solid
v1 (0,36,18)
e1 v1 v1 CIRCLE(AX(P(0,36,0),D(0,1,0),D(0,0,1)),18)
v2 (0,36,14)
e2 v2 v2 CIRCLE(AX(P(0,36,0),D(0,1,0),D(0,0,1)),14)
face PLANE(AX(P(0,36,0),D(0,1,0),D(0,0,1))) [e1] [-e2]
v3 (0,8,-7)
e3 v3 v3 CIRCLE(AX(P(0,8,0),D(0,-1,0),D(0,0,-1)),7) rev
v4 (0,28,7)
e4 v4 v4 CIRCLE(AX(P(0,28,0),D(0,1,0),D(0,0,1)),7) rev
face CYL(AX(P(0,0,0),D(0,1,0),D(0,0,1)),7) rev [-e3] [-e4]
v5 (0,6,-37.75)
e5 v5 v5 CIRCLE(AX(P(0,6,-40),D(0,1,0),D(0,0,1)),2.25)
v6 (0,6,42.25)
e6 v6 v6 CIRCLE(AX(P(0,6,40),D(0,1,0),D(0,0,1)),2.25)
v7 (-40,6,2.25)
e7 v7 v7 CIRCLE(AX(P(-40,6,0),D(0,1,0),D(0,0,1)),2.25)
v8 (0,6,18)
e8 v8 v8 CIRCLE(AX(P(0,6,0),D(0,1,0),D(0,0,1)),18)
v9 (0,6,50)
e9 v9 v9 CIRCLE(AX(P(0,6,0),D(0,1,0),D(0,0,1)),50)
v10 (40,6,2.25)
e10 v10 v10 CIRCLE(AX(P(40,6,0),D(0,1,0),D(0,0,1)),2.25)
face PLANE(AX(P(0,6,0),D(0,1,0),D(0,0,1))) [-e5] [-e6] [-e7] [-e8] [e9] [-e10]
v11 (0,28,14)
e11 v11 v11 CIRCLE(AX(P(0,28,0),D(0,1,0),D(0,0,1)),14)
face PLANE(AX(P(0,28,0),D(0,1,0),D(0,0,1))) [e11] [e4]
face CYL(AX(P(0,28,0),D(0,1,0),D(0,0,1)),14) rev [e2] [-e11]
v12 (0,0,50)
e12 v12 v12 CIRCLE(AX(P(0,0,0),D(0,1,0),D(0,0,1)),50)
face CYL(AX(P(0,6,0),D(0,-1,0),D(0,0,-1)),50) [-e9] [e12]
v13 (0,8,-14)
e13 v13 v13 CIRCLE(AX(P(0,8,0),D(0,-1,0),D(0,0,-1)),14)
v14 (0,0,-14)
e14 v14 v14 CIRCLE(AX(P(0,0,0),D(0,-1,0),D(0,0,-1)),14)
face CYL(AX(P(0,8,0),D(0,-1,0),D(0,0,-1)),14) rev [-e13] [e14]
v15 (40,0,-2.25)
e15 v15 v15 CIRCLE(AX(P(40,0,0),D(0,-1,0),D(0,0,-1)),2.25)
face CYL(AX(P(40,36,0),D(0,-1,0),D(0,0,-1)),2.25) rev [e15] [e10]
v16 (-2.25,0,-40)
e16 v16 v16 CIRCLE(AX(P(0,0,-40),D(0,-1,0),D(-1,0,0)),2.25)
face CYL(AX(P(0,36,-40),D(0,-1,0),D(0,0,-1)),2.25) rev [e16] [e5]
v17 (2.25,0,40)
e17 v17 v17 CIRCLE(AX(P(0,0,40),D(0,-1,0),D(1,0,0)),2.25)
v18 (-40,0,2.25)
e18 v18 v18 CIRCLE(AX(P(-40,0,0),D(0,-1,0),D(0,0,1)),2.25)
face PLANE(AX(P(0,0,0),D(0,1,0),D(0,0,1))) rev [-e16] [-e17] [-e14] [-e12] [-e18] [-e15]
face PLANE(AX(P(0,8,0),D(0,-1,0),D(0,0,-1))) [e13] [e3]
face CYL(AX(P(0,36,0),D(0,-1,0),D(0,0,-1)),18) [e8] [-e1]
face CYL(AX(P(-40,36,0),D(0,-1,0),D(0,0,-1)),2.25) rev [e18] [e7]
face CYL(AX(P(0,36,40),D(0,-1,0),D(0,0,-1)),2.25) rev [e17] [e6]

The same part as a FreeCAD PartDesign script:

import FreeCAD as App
import Part
import Sketcher
from FreeCAD import Vector

doc = App.newDocument("Part")
body = doc.addObject("PartDesign::Body", "Body")

sketch1 = body.newObject("Sketcher::SketchObject", "Sketch")
sketch1.AttachmentSupport = (doc.getObject("XZ_Plane"), [""])
sketch1.MapMode = "FlatFace"
sketch1.addGeometry(Part.Circle(Vector(0, 0, 0), Vector(0, 0, 1), 50), False)
sketch1.addConstraint([
    Sketcher.Constraint("Coincident", 0, 3, -1, 1),
    Sketcher.Constraint("Diameter", 0, 100.0),
])
pad1 = body.newObject("PartDesign::Pad", "Pad")
pad1.Profile = sketch1
pad1.Length = 6
pad1.Reversed = True

sketch2 = body.newObject("Sketcher::SketchObject", "Sketch001")
sketch2.AttachmentSupport = (doc.getObject("XZ_Plane"), [""])
sketch2.MapMode = "FlatFace"
sketch2.AttachmentOffset = App.Placement(Vector(0, 0, -6), App.Rotation())
sketch2.addGeometry(Part.Circle(Vector(0, 0, 0), Vector(0, 0, 1), 18), False)
sketch2.addConstraint([
    Sketcher.Constraint("Coincident", 0, 3, -1, 1),
    Sketcher.Constraint("Diameter", 0, 36.0),
])
pad2 = body.newObject("PartDesign::Pad", "Pad001")
pad2.Profile = sketch2
pad2.Length = 30
pad2.Reversed = True

sketch3 = body.newObject("Sketcher::SketchObject", "Sketch002")
sketch3.AttachmentSupport = (doc.getObject("XZ_Plane"), [""])
sketch3.MapMode = "FlatFace"
sketch3.AttachmentOffset = App.Placement(Vector(0, 0, -36), App.Rotation())
sketch3.addGeometry(Part.Circle(Vector(0, 0, 0), Vector(0, 0, 1), 7), False)
sketch3.addConstraint([
    Sketcher.Constraint("Coincident", 0, 3, -1, 1),
    Sketcher.Constraint("Diameter", 0, 14.0),
])
pocket1 = body.newObject("PartDesign::Pocket", "Pocket")
pocket1.Profile = sketch3
pocket1.Type = "ThroughAll"
pocket1.Reversed = True

sketch4 = body.newObject("Sketcher::SketchObject", "Sketch003")
sketch4.AttachmentSupport = (doc.getObject("XZ_Plane"), [""])
sketch4.MapMode = "FlatFace"
sketch4.AttachmentOffset = App.Placement(Vector(0, 0, -36), App.Rotation())
sketch4.addGeometry(Part.Circle(Vector(0, 0, 0), Vector(0, 0, 1), 14), False)
sketch4.addConstraint([
    Sketcher.Constraint("Coincident", 0, 3, -1, 1),
    Sketcher.Constraint("Diameter", 0, 28.0),
])
pocket2 = body.newObject("PartDesign::Pocket", "Pocket001")
pocket2.Profile = sketch4
pocket2.Length = 8
pocket2.Reversed = True

sketch5 = body.newObject("Sketcher::SketchObject", "Sketch004")
sketch5.AttachmentSupport = (doc.getObject("XZ_Plane"), [""])
sketch5.MapMode = "FlatFace"
sketch5.AttachmentOffset = App.Placement(Vector(0, 0, -8), App.Rotation())
sketch5.addGeometry(Part.Circle(Vector(0, 0, 0), Vector(0, 0, 1), 14), False)
sketch5.addConstraint([
    Sketcher.Constraint("Coincident", 0, 3, -1, 1),
    Sketcher.Constraint("Diameter", 0, 28.0),
])
pocket3 = body.newObject("PartDesign::Pocket", "Pocket002")
pocket3.Profile = sketch5
pocket3.Length = 8
pocket3.Reversed = True

sketch6 = body.newObject("Sketcher::SketchObject", "Sketch005")
sketch6.AttachmentSupport = (doc.getObject("XZ_Plane"), [""])
sketch6.MapMode = "FlatFace"
sketch6.addGeometry(Part.Circle(Vector(40, 0, 0), Vector(0, 0, 1), 2.2), False)
sketch6.addConstraint([
    Sketcher.Constraint("PointOnObject", 0, 3, -1),
    Sketcher.Constraint("Diameter", 0, 4.5),
    Sketcher.Constraint("DistanceX", -1, 1, 0, 3, 40.0),
])
pocket4 = body.newObject("PartDesign::Pocket", "Pocket003")
pocket4.Profile = sketch6
pocket4.Type = "ThroughAll"
doc.recompute()

polarpattern = body.newObject("PartDesign::PolarPattern", "PolarPattern")
polarpattern.Originals = [pocket4]
polarpattern.Axis = (doc.getObject("Y_Axis"), [""])
polarpattern.Angle = 360
polarpattern.Occurrences = 4
body.Tip = polarpattern

doc.recompute()
